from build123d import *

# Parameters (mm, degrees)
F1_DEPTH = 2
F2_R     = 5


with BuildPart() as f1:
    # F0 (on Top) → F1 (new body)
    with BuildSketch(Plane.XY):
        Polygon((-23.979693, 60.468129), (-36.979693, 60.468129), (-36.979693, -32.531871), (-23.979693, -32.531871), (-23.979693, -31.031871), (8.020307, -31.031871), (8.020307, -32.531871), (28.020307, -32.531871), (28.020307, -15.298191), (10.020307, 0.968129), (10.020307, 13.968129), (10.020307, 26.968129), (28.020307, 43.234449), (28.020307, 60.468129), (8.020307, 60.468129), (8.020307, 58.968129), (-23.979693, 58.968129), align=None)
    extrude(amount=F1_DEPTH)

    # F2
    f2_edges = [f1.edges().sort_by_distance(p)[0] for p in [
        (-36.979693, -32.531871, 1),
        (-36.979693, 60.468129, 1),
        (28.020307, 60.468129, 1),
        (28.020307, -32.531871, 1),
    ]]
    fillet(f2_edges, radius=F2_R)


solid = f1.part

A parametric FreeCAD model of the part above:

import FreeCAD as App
import Part
import Sketcher

V = App.Vector


def edges_at(feature, points):
    """Names of the edges that pass closest to the given points."""
    edges = feature.Shape.Edges
    near = lambda p: min(range(len(edges)), key=lambda i: edges[i].distToShape(Part.Vertex(*p))[0])
    return sorted({f"Edge{near(p) + 1}" for p in points})


def add_polygon(sketch, points):
    """Adds a closed chain of lines whose ends are joined by coincident constraints."""
    first, n = sketch.GeometryCount, len(points)
    for a, b in zip(points, points[1:] + points[:1]):
        sketch.addGeometry(Part.LineSegment(App.Vector(*a, 0), App.Vector(*b, 0)), False)
    for i in range(n):
        sketch.addConstraint(Sketcher.Constraint("Coincident", first + i, 2, first + (i + 1) % n, 1))

doc = App.newDocument("Part")
params = doc.addObject("Spreadsheet::Sheet", "Params")
for row, (alias, value) in enumerate([
    ("sketch1_width", "13 mm"),
    ("sketch1_width2", "32 mm"),
    ("sketch1_width3", "20 mm"),
    ("sketch1_height", "93 mm"),
    ("sketch1_height2", "26 mm"),
    ("pad1_length", "2 mm"),
    ("fillet_radius", "5 mm"),
], start=1):
    params.set(f"A{row}", alias)
    params.set(f"B{row}", "=" + value)
    params.setAlias(f"B{row}", alias)

body = doc.addObject("PartDesign::Body", "Body")

# Sketch on XY plane
sketch1 = body.newObject("Sketcher::SketchObject", "Sketch")
sketch1.AttachmentSupport = (doc.getObject("XY_Plane"), [""])
sketch1.MapMode = "FlatFace"
add_polygon(sketch1, [(-24, 60.5), (-37, 60.5), (-37, -32.5), (-24, -32.5), (-24, -31), (8, -31), (8, -32.5), (28, -32.5), (28, -15.3), (10, 1), (10, 27), (28, 43.2), (28, 60.5), (8, 60.5), (8, 59), (-24, 59)])  # lines 0-15
sketch1.addConstraint([
    Sketcher.Constraint("Horizontal", 0),
    Sketcher.Constraint("Vertical", 1),
    Sketcher.Constraint("Horizontal", 2),
    Sketcher.Constraint("Vertical", 3),
    Sketcher.Constraint("Horizontal", 4),
    Sketcher.Constraint("Vertical", 5),
    Sketcher.Constraint("Horizontal", 6),
    Sketcher.Constraint("Vertical", 7),
    Sketcher.Constraint("Vertical", 9),
    Sketcher.Constraint("Vertical", 11),
    Sketcher.Constraint("Horizontal", 12),
    Sketcher.Constraint("Vertical", 13),
    Sketcher.Constraint("Horizontal", 14),
    Sketcher.Constraint("Vertical", 15),
    Sketcher.Constraint("Horizontal", 2, 2, 5, 2),
    Sketcher.Constraint("Horizontal", 0, 2, 11, 2),
    Sketcher.Constraint("Vertical", 7, 2, 10, 2),
    Sketcher.Constraint("Vertical", 5, 2, 12, 2),
    Sketcher.Constraint("Vertical", 3, 2, 14, 2),
    Sketcher.Constraint("Equal", 7, 11),
    Sketcher.Constraint("Equal", 5, 13),
    Sketcher.Constraint("Equal", 8, 10),
    Sketcher.Constraint("DistanceX", 0, 2, 0, 1, 13.0),
    Sketcher.Constraint("DistanceX", 4, 1, 4, 2, 32.0),
    Sketcher.Constraint("DistanceX", 6, 1, 6, 2, 20.0),
    Sketcher.Constraint("DistanceY", 1, 2, 1, 1, 93.0),
    Sketcher.Constraint("DistanceY", 9, 1, 9, 2, 26.0),
    Sketcher.Constraint("DistanceY", 3, 1, 3, 2, 1.5),
    Sketcher.Constraint("DistanceX", 8, 2, 7, 2, 18.0),
    Sketcher.Constraint("DistanceY", 7, 1, 7, 2, 17.23368),
    Sketcher.Constraint("DistanceY", -1, 1, 0, 2, 60.468129),
    Sketcher.Constraint("DistanceX", 0, 2, -1, 1, 36.979693),
])
sketch1.setExpression("Constraints[38]", "Params.sketch1_width")
sketch1.setExpression("Constraints[39]", "Params.sketch1_width2")
sketch1.setExpression("Constraints[40]", "Params.sketch1_width3")
sketch1.setExpression("Constraints[41]", "Params.sketch1_height")
sketch1.setExpression("Constraints[42]", "Params.sketch1_height2")
pad1 = body.newObject("PartDesign::Pad", "Pad")
pad1.Profile = sketch1
pad1.setExpression("Length", "Params.pad1_length")
doc.recompute()

fillet = body.newObject("PartDesign::Fillet", "Fillet")
fillet.Base = (pad1, edges_at(pad1, [
    (-36.98, -32.532, 1),
    (-36.98, 60.468, 1),
    (28.02, 60.468, 1),
    (28.02, -32.532, 1),
]))
fillet.setExpression("Radius", "Params.fillet_radius")

doc.recompute()
